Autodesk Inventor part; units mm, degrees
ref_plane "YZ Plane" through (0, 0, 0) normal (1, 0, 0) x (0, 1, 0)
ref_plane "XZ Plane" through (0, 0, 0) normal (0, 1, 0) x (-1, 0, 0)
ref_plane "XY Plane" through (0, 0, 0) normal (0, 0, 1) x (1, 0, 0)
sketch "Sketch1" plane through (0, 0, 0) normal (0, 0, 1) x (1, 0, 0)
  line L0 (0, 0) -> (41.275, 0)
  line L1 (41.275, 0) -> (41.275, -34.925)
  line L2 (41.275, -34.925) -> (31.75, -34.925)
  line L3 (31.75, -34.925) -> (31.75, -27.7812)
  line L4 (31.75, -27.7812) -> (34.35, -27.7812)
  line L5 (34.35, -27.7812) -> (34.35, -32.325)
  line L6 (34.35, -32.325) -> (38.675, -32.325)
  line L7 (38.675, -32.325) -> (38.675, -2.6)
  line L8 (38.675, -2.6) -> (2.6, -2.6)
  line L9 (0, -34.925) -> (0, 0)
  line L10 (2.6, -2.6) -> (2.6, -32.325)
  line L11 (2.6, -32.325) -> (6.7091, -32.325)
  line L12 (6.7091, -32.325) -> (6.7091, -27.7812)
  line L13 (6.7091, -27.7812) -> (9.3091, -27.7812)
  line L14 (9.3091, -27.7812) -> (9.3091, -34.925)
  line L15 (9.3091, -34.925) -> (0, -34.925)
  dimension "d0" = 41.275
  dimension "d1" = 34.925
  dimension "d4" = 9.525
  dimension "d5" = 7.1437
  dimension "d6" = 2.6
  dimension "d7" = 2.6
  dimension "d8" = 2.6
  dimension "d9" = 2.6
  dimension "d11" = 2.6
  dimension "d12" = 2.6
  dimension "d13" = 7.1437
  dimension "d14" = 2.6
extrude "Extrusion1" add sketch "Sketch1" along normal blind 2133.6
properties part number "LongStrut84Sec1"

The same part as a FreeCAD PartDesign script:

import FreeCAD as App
import Part
import Sketcher
Q = App.Units.Quantity

doc = App.newDocument("Part")
params = doc.addObject("Spreadsheet::Sheet", "Params")
for row, (alias, value) in enumerate([
    ("sketch1_width", "1.625 in"),
    ("sketch1_width2", "0.375 in"),
    ("sketch1_height", "1.375 in"),
    ("sketch1_height2", "0.281252 in"),
    ("pad1_length", "84 in"),
], start=1):
    params.set(f"A{row}", alias)
    params.set(f"B{row}", "=" + value)
    params.setAlias(f"B{row}", alias)

body = doc.addObject("PartDesign::Body", "Body")

sketch1 = body.newObject("Sketcher::SketchObject", "Sketch")
sketch1.AttachmentSupport = (doc.getObject("XY_Plane"), [""])
sketch1.MapMode = "FlatFace"
sketch1.addGeometry(Part.LineSegment(App.Vector(41.275, 0, 0), App.Vector(0, 0, 0)), False)
sketch1.addGeometry(Part.LineSegment(App.Vector(0, 0, 0), App.Vector(0, -34.925, 0)), False)
sketch1.addGeometry(Part.LineSegment(App.Vector(0, -34.925, 0), App.Vector(9.3091, -34.925, 0)), False)
sketch1.addGeometry(Part.LineSegment(App.Vector(9.3091, -34.925, 0), App.Vector(9.3091, -27.7812, 0)), False)
sketch1.addGeometry(Part.LineSegment(App.Vector(9.3091, -27.7812, 0), App.Vector(6.7091, -27.7812, 0)), False)
sketch1.addGeometry(Part.LineSegment(App.Vector(6.7091, -27.7812, 0), App.Vector(6.7091, -32.325, 0)), False)
sketch1.addGeometry(Part.LineSegment(App.Vector(6.7091, -32.325, 0), App.Vector(2.6, -32.325, 0)), False)
sketch1.addGeometry(Part.LineSegment(App.Vector(2.6, -32.325, 0), App.Vector(2.6, -2.6, 0)), False)
sketch1.addGeometry(Part.LineSegment(App.Vector(2.6, -2.6, 0), App.Vector(38.675, -2.6, 0)), False)
sketch1.addGeometry(Part.LineSegment(App.Vector(38.675, -2.6, 0), App.Vector(38.675, -32.325, 0)), False)
sketch1.addGeometry(Part.LineSegment(App.Vector(38.675, -32.325, 0), App.Vector(34.35, -32.325, 0)), False)
sketch1.addGeometry(Part.LineSegment(App.Vector(34.35, -32.325, 0), App.Vector(34.35, -27.7812, 0)), False)
sketch1.addGeometry(Part.LineSegment(App.Vector(34.35, -27.7812, 0), App.Vector(31.75, -27.7812, 0)), False)
sketch1.addGeometry(Part.LineSegment(App.Vector(31.75, -27.7812, 0), App.Vector(31.75, -34.925, 0)), False)
sketch1.addGeometry(Part.LineSegment(App.Vector(31.75, -34.925, 0), App.Vector(41.275, -34.925, 0)), False)
sketch1.addGeometry(Part.LineSegment(App.Vector(41.275, -34.925, 0), App.Vector(41.275, 0, 0)), False)
sketch1.addConstraint(Sketcher.Constraint("Coincident", 0, 2, 1, 1))
sketch1.addConstraint(Sketcher.Constraint("Coincident", 1, 2, 2, 1))
sketch1.addConstraint(Sketcher.Constraint("Coincident", 2, 2, 3, 1))
sketch1.addConstraint(Sketcher.Constraint("Coincident", 3, 2, 4, 1))
sketch1.addConstraint(Sketcher.Constraint("Coincident", 4, 2, 5, 1))
sketch1.addConstraint(Sketcher.Constraint("Coincident", 5, 2, 6, 1))
sketch1.addConstraint(Sketcher.Constraint("Coincident", 6, 2, 7, 1))
sketch1.addConstraint(Sketcher.Constraint("Coincident", 7, 2, 8, 1))
sketch1.addConstraint(Sketcher.Constraint("Coincident", 8, 2, 9, 1))
sketch1.addConstraint(Sketcher.Constraint("Coincident", 9, 2, 10, 1))
sketch1.addConstraint(Sketcher.Constraint("Coincident", 10, 2, 11, 1))
sketch1.addConstraint(Sketcher.Constraint("Coincident", 11, 2, 12, 1))
sketch1.addConstraint(Sketcher.Constraint("Coincident", 12, 2, 13, 1))
sketch1.addConstraint(Sketcher.Constraint("Coincident", 13, 2, 14, 1))
sketch1.addConstraint(Sketcher.Constraint("Coincident", 14, 2, 15, 1))
sketch1.addConstraint(Sketcher.Constraint("Coincident", 15, 2, 0, 1))
sketch1.addConstraint(Sketcher.Constraint("Horizontal", 0))
sketch1.addConstraint(Sketcher.Constraint("Vertical", 1))
sketch1.addConstraint(Sketcher.Constraint("Horizontal", 2))
sketch1.addConstraint(Sketcher.Constraint("Vertical", 3))
sketch1.addConstraint(Sketcher.Constraint("Horizontal", 4))
sketch1.addConstraint(Sketcher.Constraint("Vertical", 5))
sketch1.addConstraint(Sketcher.Constraint("Horizontal", 6))
sketch1.addConstraint(Sketcher.Constraint("Vertical", 7))
sketch1.addConstraint(Sketcher.Constraint("Horizontal", 8))
sketch1.addConstraint(Sketcher.Constraint("Vertical", 9))
sketch1.addConstraint(Sketcher.Constraint("Horizontal", 10))
sketch1.addConstraint(Sketcher.Constraint("Vertical", 11))
sketch1.addConstraint(Sketcher.Constraint("Horizontal", 12))
sketch1.addConstraint(Sketcher.Constraint("Vertical", 13))
sketch1.addConstraint(Sketcher.Constraint("Horizontal", 14))
sketch1.addConstraint(Sketcher.Constraint("Vertical", 15))
sketch1.addConstraint(Sketcher.Constraint("Coincident", 0, 2, -1, 1))
sketch1.addConstraint(Sketcher.Constraint("Horizontal", 6, 2, 9, 2))
sketch1.addConstraint(Sketcher.Constraint("Horizontal", 4, 2, 11, 2))
sketch1.addConstraint(Sketcher.Constraint("Horizontal", 2, 2, 13, 2))
sketch1.addConstraint(Sketcher.Constraint("Equal", 4, 12))
sketch1.addConstraint(Sketcher.Constraint("DistanceX", 0, 2, 0, 1, Q("1.625 in")))
sketch1.addConstraint(Sketcher.Constraint("DistanceX", 14, 1, 14, 2, Q("0.375 in")))
sketch1.addConstraint(Sketcher.Constraint("DistanceY", 1, 2, 1, 1, Q("1.375 in")))
sketch1.addConstraint(Sketcher.Constraint("DistanceY", 3, 1, 3, 2, Q("0.281252 in")))
sketch1.addConstraint(Sketcher.Constraint("DistanceX", 4, 2, 4, 1, Q("2.6 mm")))
sketch1.addConstraint(Sketcher.Constraint("DistanceX", -1, 1, 6, 2, Q("2.6 mm")))
sketch1.addConstraint(Sketcher.Constraint("DistanceY", 7, 2, -1, 1, Q("2.6 mm")))
sketch1.addConstraint(Sketcher.Constraint("DistanceY", 2, 2, 5, 2, Q("2.6 mm")))
sketch1.addConstraint(Sketcher.Constraint("DistanceX", 9, 2, 14, 2, Q("2.6 mm")))
sketch1.addConstraint(Sketcher.Constraint("DistanceX", 2, 1, 2, 2, Q("0.3665 in")))
sketch1.setExpression("Constraints[37]", "Params.sketch1_width")
sketch1.setExpression("Constraints[38]", "Params.sketch1_width2")
sketch1.setExpression("Constraints[39]", "Params.sketch1_height")
sketch1.setExpression("Constraints[40]", "Params.sketch1_height2")
pad1 = body.newObject("PartDesign::Pad", "Pad")
pad1.Profile = sketch1
pad1.setExpression("Length", "Params.pad1_length")

doc.recompute()
